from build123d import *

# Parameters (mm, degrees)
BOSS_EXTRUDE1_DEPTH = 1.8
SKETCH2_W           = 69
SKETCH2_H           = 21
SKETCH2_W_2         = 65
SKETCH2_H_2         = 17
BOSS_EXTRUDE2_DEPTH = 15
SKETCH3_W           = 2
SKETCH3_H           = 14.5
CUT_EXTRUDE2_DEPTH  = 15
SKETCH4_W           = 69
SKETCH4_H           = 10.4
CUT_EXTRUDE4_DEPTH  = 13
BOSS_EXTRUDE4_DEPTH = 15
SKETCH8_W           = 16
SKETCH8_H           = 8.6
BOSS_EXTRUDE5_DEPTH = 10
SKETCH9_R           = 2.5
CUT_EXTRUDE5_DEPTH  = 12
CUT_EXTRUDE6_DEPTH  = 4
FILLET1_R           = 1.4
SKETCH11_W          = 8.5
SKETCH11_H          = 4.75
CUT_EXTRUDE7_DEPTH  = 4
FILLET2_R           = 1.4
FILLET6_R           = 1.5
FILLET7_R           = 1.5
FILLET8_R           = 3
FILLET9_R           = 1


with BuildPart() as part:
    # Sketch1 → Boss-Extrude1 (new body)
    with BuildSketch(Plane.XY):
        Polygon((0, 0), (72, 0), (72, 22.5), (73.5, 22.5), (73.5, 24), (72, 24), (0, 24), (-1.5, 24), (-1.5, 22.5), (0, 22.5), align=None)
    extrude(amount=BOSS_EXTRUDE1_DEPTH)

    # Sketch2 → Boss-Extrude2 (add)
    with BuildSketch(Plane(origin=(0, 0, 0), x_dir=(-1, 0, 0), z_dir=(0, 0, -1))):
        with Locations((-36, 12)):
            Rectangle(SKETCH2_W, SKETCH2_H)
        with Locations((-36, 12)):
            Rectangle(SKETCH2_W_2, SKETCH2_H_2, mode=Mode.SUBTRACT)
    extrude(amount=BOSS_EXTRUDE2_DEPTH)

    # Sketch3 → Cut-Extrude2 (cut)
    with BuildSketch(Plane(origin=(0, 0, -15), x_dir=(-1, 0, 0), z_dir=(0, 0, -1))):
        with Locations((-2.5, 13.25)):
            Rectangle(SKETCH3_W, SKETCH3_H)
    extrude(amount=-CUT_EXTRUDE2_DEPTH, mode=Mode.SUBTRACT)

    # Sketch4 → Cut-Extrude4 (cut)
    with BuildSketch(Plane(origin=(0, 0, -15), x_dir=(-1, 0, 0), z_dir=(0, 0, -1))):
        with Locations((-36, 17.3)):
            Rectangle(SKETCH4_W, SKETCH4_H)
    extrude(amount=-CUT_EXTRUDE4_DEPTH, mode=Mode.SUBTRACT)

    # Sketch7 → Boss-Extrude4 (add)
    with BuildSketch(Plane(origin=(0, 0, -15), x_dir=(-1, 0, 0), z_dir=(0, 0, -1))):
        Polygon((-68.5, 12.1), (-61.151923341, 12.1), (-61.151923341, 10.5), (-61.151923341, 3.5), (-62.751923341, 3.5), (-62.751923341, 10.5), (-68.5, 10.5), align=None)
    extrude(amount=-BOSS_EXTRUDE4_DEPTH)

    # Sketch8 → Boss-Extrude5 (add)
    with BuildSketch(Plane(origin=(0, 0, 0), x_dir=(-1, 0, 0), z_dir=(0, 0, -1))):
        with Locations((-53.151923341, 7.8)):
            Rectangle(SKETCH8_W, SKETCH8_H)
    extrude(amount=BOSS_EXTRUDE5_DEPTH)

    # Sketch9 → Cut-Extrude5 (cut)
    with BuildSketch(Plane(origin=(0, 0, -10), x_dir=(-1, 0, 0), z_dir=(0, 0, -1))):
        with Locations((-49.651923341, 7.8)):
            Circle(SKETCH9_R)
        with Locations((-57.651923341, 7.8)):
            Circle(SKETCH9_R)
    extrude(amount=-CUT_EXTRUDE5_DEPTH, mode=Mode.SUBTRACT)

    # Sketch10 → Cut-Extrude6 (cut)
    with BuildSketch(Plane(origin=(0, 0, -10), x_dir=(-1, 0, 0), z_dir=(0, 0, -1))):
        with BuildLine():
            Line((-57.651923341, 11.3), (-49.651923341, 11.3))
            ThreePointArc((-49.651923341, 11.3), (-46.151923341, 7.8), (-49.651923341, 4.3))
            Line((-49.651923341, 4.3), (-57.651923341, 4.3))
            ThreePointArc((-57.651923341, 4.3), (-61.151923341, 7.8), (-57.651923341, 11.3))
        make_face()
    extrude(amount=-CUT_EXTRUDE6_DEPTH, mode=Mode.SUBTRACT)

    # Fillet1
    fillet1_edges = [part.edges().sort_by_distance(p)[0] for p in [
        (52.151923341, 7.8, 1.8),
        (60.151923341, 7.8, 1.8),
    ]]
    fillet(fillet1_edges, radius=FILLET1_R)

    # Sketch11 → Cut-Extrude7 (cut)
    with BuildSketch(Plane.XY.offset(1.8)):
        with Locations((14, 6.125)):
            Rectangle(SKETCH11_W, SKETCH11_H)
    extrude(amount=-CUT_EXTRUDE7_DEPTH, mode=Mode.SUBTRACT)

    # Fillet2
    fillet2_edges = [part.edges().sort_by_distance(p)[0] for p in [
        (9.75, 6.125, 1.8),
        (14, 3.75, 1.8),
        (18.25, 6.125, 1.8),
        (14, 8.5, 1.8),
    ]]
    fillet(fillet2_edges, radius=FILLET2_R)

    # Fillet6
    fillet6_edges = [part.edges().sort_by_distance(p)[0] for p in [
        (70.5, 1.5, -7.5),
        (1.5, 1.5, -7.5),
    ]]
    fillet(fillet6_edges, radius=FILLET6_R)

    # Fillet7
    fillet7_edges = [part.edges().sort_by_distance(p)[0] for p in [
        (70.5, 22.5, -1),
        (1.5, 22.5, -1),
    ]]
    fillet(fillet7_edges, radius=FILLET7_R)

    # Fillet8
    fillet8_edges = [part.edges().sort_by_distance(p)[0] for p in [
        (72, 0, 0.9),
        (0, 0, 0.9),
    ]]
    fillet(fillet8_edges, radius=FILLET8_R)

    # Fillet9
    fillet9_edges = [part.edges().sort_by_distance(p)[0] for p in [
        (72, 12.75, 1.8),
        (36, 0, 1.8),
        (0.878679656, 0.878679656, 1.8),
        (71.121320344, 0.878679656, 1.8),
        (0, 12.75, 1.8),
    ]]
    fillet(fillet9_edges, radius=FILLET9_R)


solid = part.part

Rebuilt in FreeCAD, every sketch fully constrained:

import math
import FreeCAD as App
import Part
import Sketcher

V = App.Vector
Q = App.Units.Quantity


def edges_at(feature, points):
    """Names of the edges that pass closest to the given points."""
    edges = feature.Shape.Edges
    near = lambda p: min(range(len(edges)), key=lambda i: edges[i].distToShape(Part.Vertex(*p))[0])
    return sorted({f"Edge{near(p) + 1}" for p in points})


def add_polygon(sketch, points):
    """Adds a closed chain of lines whose ends are joined by coincident constraints."""
    first, n = sketch.GeometryCount, len(points)
    for a, b in zip(points, points[1:] + points[:1]):
        sketch.addGeometry(Part.LineSegment(App.Vector(*a, 0), App.Vector(*b, 0)), False)
    for i in range(n):
        sketch.addConstraint(Sketcher.Constraint("Coincident", first + i, 2, first + (i + 1) % n, 1))

doc = App.newDocument("Part")
body = doc.addObject("PartDesign::Body", "Body")

sketch1 = body.newObject("Sketcher::SketchObject", "Sketch")
sketch1.AttachmentSupport = (doc.getObject("XY_Plane"), [""])
sketch1.MapMode = "FlatFace"
add_polygon(sketch1, [(0, 0), (72, 0), (72, 22.5), (73.5, 22.5), (73.5, 24), (-1.5, 24), (-1.5, 22.5), (0, 22.5)])
sketch1.addConstraint([
    Sketcher.Constraint("Horizontal", 0),
    Sketcher.Constraint("Vertical", 1),
    Sketcher.Constraint("Horizontal", 2),
    Sketcher.Constraint("Vertical", 3),
    Sketcher.Constraint("Horizontal", 4),
    Sketcher.Constraint("Vertical", 5),
    Sketcher.Constraint("Horizontal", 6),
    Sketcher.Constraint("Vertical", 7),
    Sketcher.Constraint("Coincident", 7, 2, -1, 1),
    Sketcher.Constraint("Horizontal", 2, 2, 5, 2),
    Sketcher.Constraint("Equal", 2, 6),
    Sketcher.Constraint("Equal", 6, 3),
    Sketcher.Constraint("DistanceX", 0, 1, 0, 2, Q("72 mm")),
    Sketcher.Constraint("DistanceX", 4, 2, 4, 1, Q("75 mm")),
    Sketcher.Constraint("DistanceY", 1, 1, 1, 2, Q("22.5 mm")),
])
pad1 = body.newObject("PartDesign::Pad", "Pad")
pad1.Profile = sketch1
pad1.Length = 1.8

sketch2 = body.newObject("Sketcher::SketchObject", "Sketch001")
sketch2.AttachmentSupport = (doc.getObject("XY_Plane"), [""])
sketch2.MapMode = "FlatFace"
add_polygon(sketch2, [(70, 22), (70, 2), (2, 2), (2, 22)])
add_polygon(sketch2, [(4, 4), (68, 4), (68, 20), (4, 20)])
sketch2.addConstraint([
    Sketcher.Constraint("Vertical", 0),
    Sketcher.Constraint("Horizontal", 1),
    Sketcher.Constraint("Vertical", 2),
    Sketcher.Constraint("Horizontal", 3),
    Sketcher.Constraint("Horizontal", 4),
    Sketcher.Constraint("Vertical", 5),
    Sketcher.Constraint("Horizontal", 6),
    Sketcher.Constraint("Vertical", 7),
    Sketcher.Constraint("DistanceX", 1, 2, 1, 1, Q("69 mm")),
    Sketcher.Constraint("DistanceX", 4, 1, 4, 2, Q("65 mm")),
    Sketcher.Constraint("DistanceY", 0, 2, 0, 1, Q("21 mm")),
    Sketcher.Constraint("DistanceY", 5, 1, 5, 2, Q("17 mm")),
    Sketcher.Constraint("DistanceX", 4, 2, 0, 2, Q("2 mm")),
    Sketcher.Constraint("DistanceY", 0, 2, 4, 2, Q("2 mm")),
    Sketcher.Constraint("DistanceX", -1, 1, 0, 2, Q("70.5 mm")),
    Sketcher.Constraint("DistanceY", -1, 1, 0, 2, Q("1.5 mm")),
])
pad2 = body.newObject("PartDesign::Pad", "Pad001")
pad2.Profile = sketch2
pad2.Length = 15
pad2.Reversed = True

sketch3 = body.newObject("Sketcher::SketchObject", "Sketch002")
sketch3.AttachmentSupport = (doc.getObject("XY_Plane"), [""])
sketch3.MapMode = "FlatFace"
sketch3.AttachmentOffset = App.Placement(V(0, 0, -15), App.Rotation())
add_polygon(sketch3, [(3.5, 20.5), (3.5, 6), (1.5, 6), (1.5, 20.5)])
sketch3.addConstraint([
    Sketcher.Constraint("Vertical", 0),
    Sketcher.Constraint("Horizontal", 1),
    Sketcher.Constraint("Vertical", 2),
    Sketcher.Constraint("Horizontal", 3),
    Sketcher.Constraint("DistanceX", 1, 2, 1, 1, Q("2 mm")),
    Sketcher.Constraint("DistanceY", 0, 2, 0, 1, Q("14.5 mm")),
    Sketcher.Constraint("DistanceY", -1, 1, 0, 2, Q("6 mm")),
    Sketcher.Constraint("DistanceX", -1, 1, 0, 2, Q("3.5 mm")),
])
pocket1 = body.newObject("PartDesign::Pocket", "Pocket")
pocket1.Profile = sketch3
pocket1.Length = 15
pocket1.Reversed = True

sketch4 = body.newObject("Sketcher::SketchObject", "Sketch003")
sketch4.AttachmentSupport = (doc.getObject("XY_Plane"), [""])
sketch4.MapMode = "FlatFace"
sketch4.AttachmentOffset = App.Placement(V(0, 0, -15), App.Rotation())
add_polygon(sketch4, [(70, 22), (70, 12), (2, 12), (2, 22)])
sketch4.addConstraint([
    Sketcher.Constraint("Vertical", 0),
    Sketcher.Constraint("Horizontal", 1),
    Sketcher.Constraint("Vertical", 2),
    Sketcher.Constraint("Horizontal", 3),
    Sketcher.Constraint("DistanceX", 1, 2, 1, 1, Q("69 mm")),
    Sketcher.Constraint("DistanceY", 0, 2, 0, 1, Q("10.4 mm")),
    Sketcher.Constraint("DistanceX", -1, 1, 0, 2, Q("70.5 mm")),
    Sketcher.Constraint("DistanceY", -1, 1, 0, 2, Q("12.1 mm")),
])
pocket2 = body.newObject("PartDesign::Pocket", "Pocket001")
pocket2.Profile = sketch4
pocket2.Length = 13
pocket2.Reversed = True

sketch5 = body.newObject("Sketcher::SketchObject", "Sketch004")
sketch5.AttachmentSupport = (doc.getObject("XY_Plane"), [""])
sketch5.MapMode = "FlatFace"
sketch5.AttachmentOffset = App.Placement(V(0, 0, -15), App.Rotation())
add_polygon(sketch5, [(61.2, 12.1), (68.5, 12.1), (68.5, 10.5), (62.8, 10.5), (62.8, 3.5), (61.2, 3.5)])
sketch5.addConstraint([
    Sketcher.Constraint("Horizontal", 0),
    Sketcher.Constraint("Vertical", 1),
    Sketcher.Constraint("Horizontal", 2),
    Sketcher.Constraint("Vertical", 3),
    Sketcher.Constraint("Horizontal", 4),
    Sketcher.Constraint("Vertical", 5),
    Sketcher.Constraint("Equal", 4, 1),
    Sketcher.Constraint("DistanceY", 3, 2, 3, 1, Q("7 mm")),
    Sketcher.Constraint("DistanceX", 4, 2, 4, 1, Q("1.6 mm")),
    Sketcher.Constraint("DistanceX", -1, 1, 0, 2, Q("68.5 mm")),
    Sketcher.Constraint("DistanceY", -1, 1, 0, 2, Q("12.1 mm")),
    Sketcher.Constraint("DistanceX", 0, 1, 0, 2, Q("7.348077 mm")),
])
pad3 = body.newObject("PartDesign::Pad", "Pad002")
pad3.Profile = sketch5
pad3.Length = 15

sketch6 = body.newObject("Sketcher::SketchObject", "Sketch005")
sketch6.AttachmentSupport = (doc.getObject("XY_Plane"), [""])
sketch6.MapMode = "FlatFace"
add_polygon(sketch6, [(61, 12), (61, 4), (45, 4), (45, 12)])
sketch6.addConstraint([
    Sketcher.Constraint("Vertical", 0),
    Sketcher.Constraint("Horizontal", 1),
    Sketcher.Constraint("Vertical", 2),
    Sketcher.Constraint("Horizontal", 3),
    Sketcher.Constraint("DistanceX", 1, 2, 1, 1, Q("16 mm")),
    Sketcher.Constraint("DistanceY", 0, 2, 0, 1, Q("8.6 mm")),
    Sketcher.Constraint("DistanceY", -1, 1, 0, 2, Q("3.5 mm")),
    Sketcher.Constraint("DistanceX", -1, 1, 0, 2, Q("61.151923 mm")),
])
pad4 = body.newObject("PartDesign::Pad", "Pad003")
pad4.Profile = sketch6
pad4.Length = 10
pad4.Reversed = True

sketch7 = body.newObject("Sketcher::SketchObject", "Sketch006")
sketch7.AttachmentSupport = (doc.getObject("XY_Plane"), [""])
sketch7.MapMode = "FlatFace"
sketch7.AttachmentOffset = App.Placement(V(0, 0, -10), App.Rotation())
sketch7.addGeometry([
    Part.Circle(V(49.7, 7.8, 0), V(0, 0, 1), 2.5),
    Part.Circle(V(57.7, 7.8, 0), V(0, 0, 1), 2.5),
], False)
sketch7.addConstraint([
    Sketcher.Constraint("Equal", 0, 1),
    Sketcher.Constraint("Horizontal", 0, 3, 1, 3),
    Sketcher.Constraint("Diameter", 0, Q("5 mm")),
    Sketcher.Constraint("DistanceX", 0, 3, 1, 3, Q("8 mm")),
    Sketcher.Constraint("DistanceY", -1, 1, 0, 3, Q("7.8 mm")),
    Sketcher.Constraint("DistanceX", -1, 1, 0, 3, Q("49.651923 mm")),
])
pocket3 = body.newObject("PartDesign::Pocket", "Pocket002")
pocket3.Profile = sketch7
pocket3.Length = 12
pocket3.Reversed = True

sketch8 = body.newObject("Sketcher::SketchObject", "Sketch007")
sketch8.AttachmentSupport = (doc.getObject("XY_Plane"), [""])
sketch8.MapMode = "FlatFace"
sketch8.AttachmentOffset = App.Placement(V(0, 0, -10), App.Rotation())
sketch8.addGeometry([
    Part.LineSegment(V(49.7, 11.3, 0), V(57.7, 11.3, 0)),
    Part.ArcOfCircle(Part.Circle(V(57.7, 7.8, 0), V(0, 0, 1), 3.5), math.radians(-90), math.radians(90)),
    Part.LineSegment(V(57.7, 4.3, 0), V(49.7, 4.3, 0)),
    Part.ArcOfCircle(Part.Circle(V(49.7, 7.8, 0), V(0, 0, 1), 3.5), math.radians(90), math.radians(270)),
], False)
sketch8.addConstraint([
    Sketcher.Constraint("Tangent", 0, 2, 1, 2),
    Sketcher.Constraint("Tangent", 1, 1, 2, 1),
    Sketcher.Constraint("Tangent", 2, 2, 3, 2),
    Sketcher.Constraint("Tangent", 3, 1, 0, 1),
    Sketcher.Constraint("Horizontal", 0),
    Sketcher.Constraint("Horizontal", 2),
    Sketcher.Constraint("Radius", 1, Q("3.5 mm")),
    Sketcher.Constraint("DistanceX", 0, 1, 0, 2, Q("8 mm")),
    Sketcher.Constraint("DistanceY", -1, 1, 1, 3, Q("7.8 mm")),
    Sketcher.Constraint("DistanceX", -1, 1, 1, 3, Q("57.651923 mm")),
])
pocket4 = body.newObject("PartDesign::Pocket", "Pocket003")
pocket4.Profile = sketch8
pocket4.Length = 4
pocket4.Reversed = True
doc.recompute()

fillet = body.newObject("PartDesign::Fillet", "Fillet")
fillet.Base = (pocket4, edges_at(pocket4, [(52.152, 7.8, 1.8), (60.152, 7.8, 1.8)]))
fillet.Radius = 1.4

sketch9 = body.newObject("Sketcher::SketchObject", "Sketch008")
sketch9.AttachmentSupport = (doc.getObject("XY_Plane"), [""])
sketch9.MapMode = "FlatFace"
sketch9.AttachmentOffset = App.Placement(V(0, 0, 1.8), App.Rotation())
add_polygon(sketch9, [(9.8, 8.5), (9.8, 3.8), (18.2, 3.8), (18.2, 8.5)])
sketch9.addConstraint([
    Sketcher.Constraint("Vertical", 0),
    Sketcher.Constraint("Horizontal", 1),
    Sketcher.Constraint("Vertical", 2),
    Sketcher.Constraint("Horizontal", 3),
    Sketcher.Constraint("DistanceX", 1, 1, 1, 2, Q("8.5 mm")),
    Sketcher.Constraint("DistanceY", 0, 2, 0, 1, Q("4.75 mm")),
    Sketcher.Constraint("DistanceY", -1, 1, 2, 2, Q("8.5 mm")),
    Sketcher.Constraint("DistanceX", -1, 1, 0, 2, Q("9.75 mm")),
])
pocket5 = body.newObject("PartDesign::Pocket", "Pocket004")
pocket5.Profile = sketch9
pocket5.Length = 4
doc.recompute()

fillet2 = body.newObject("PartDesign::Fillet", "Fillet001")
fillet2.Base = (pocket5, edges_at(pocket5, [
    (9.75, 6.125, 1.8),
    (14, 3.75, 1.8),
    (18.25, 6.125, 1.8),
    (14, 8.5, 1.8),
]))
fillet2.Radius = 1.4
doc.recompute()

fillet3 = body.newObject("PartDesign::Fillet", "Fillet002")
fillet3.Base = (fillet2, edges_at(fillet2, [(70.5, 1.5, -7.5), (1.5, 1.5, -7.5)]))
fillet3.Radius = 1.5
doc.recompute()

fillet4 = body.newObject("PartDesign::Fillet", "Fillet003")
fillet4.Base = (fillet3, edges_at(fillet3, [(70.5, 22.5, -1), (1.5, 22.5, -1)]))
fillet4.Radius = 1.5
doc.recompute()

fillet5 = body.newObject("PartDesign::Fillet", "Fillet004")
fillet5.Base = (fillet4, edges_at(fillet4, [(72, 0, 0.9), (0, 0, 0.9)]))
fillet5.Radius = 3
doc.recompute()

fillet6 = body.newObject("PartDesign::Fillet", "Fillet005")
fillet6.Base = (fillet5, edges_at(fillet5, [
    (72, 12.75, 1.8),
    (36, 0, 1.8),
    (0.879, 0.879, 1.8),
    (71.121, 0.879, 1.8),
    (0, 12.75, 1.8),
]))
fillet6.Radius = 1

doc.recompute()
